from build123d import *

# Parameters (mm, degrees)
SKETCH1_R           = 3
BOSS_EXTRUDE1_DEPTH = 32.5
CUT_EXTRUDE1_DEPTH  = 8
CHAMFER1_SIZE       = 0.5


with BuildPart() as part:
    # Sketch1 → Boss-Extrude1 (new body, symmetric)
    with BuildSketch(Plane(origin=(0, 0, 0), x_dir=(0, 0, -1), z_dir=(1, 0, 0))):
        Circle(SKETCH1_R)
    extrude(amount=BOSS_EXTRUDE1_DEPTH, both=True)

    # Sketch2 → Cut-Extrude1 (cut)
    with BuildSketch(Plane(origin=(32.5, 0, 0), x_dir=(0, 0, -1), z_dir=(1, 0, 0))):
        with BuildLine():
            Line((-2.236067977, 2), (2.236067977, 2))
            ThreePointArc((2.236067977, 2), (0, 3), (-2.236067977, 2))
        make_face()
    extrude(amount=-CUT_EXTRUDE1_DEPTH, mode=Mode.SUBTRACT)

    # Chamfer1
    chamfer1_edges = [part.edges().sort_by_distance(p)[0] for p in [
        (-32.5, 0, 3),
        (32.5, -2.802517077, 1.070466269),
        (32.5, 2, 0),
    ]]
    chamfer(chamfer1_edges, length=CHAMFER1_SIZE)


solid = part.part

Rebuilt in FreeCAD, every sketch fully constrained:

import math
import FreeCAD as App
import Part
import Sketcher
Q = App.Units.Quantity


def edges_at(feature, points):
    """Names of the edges that pass closest to the given points."""
    edges = feature.Shape.Edges
    near = lambda p: min(range(len(edges)), key=lambda i: edges[i].distToShape(Part.Vertex(*p))[0])
    return sorted({f"Edge{near(p) + 1}" for p in points})

doc = App.newDocument("Part")
body = doc.addObject("PartDesign::Body", "Body")

# Sketch on YZ plane
sketch1 = doc.addObject("Sketcher::SketchObject", "Sketch")
body.addObject(sketch1)
sketch1.AttachmentSupport = (doc.YZ_Plane, [""])
sketch1.MapMode = "FlatFace"
sketch1.addGeometry(Part.Circle(App.Vector(0, 0, 0), App.Vector(0, 0, 1), 3), False)
sketch1.addConstraint(Sketcher.Constraint("Coincident", 0, 3, -1, 1))
sketch1.addConstraint(Sketcher.Constraint("Diameter", 0, Q("6 mm")))
pad1 = doc.addObject("PartDesign::Pad", "Pad")
body.addObject(pad1)
pad1.Profile = sketch1
pad1.Length = 65
pad1.Midplane = True

# Sketch on YZ plane
sketch2 = doc.addObject("Sketcher::SketchObject", "Sketch001")
body.addObject(sketch2)
sketch2.AttachmentSupport = (doc.YZ_Plane, [""])
sketch2.MapMode = "FlatFace"
sketch2.AttachmentOffset = App.Placement(App.Vector(0, 0, 32.5), App.Rotation())
sketch2.addGeometry(Part.LineSegment(App.Vector(2, 2.2, 0), App.Vector(2, -2.2, 0)), False)
sketch2.addGeometry(Part.ArcOfCircle(Part.Circle(App.Vector(0, 0, 0), App.Vector(0, 0, 1), 3), math.radians(-48), math.radians(48)), False)
sketch2.addConstraint(Sketcher.Constraint("Coincident", 0, 1, 1, 2))
sketch2.addConstraint(Sketcher.Constraint("Coincident", 1, 1, 0, 2))
sketch2.addConstraint(Sketcher.Constraint("Vertical", 0))
sketch2.addConstraint(Sketcher.Constraint("Coincident", 1, 3, -1, 1))
sketch2.addConstraint(Sketcher.Constraint("Radius", 1, Q("3 mm")))
sketch2.addConstraint(Sketcher.Constraint("DistanceX", -1, 1, 0, 1, Q("2 mm")))
pocket1 = doc.addObject("PartDesign::Pocket", "Pocket")
body.addObject(pocket1)
pocket1.Profile = sketch2
pocket1.Length = 8
doc.recompute()

chamfer = doc.addObject("PartDesign::Chamfer", "Chamfer")
body.addObject(chamfer)
chamfer.Base = (pocket1, edges_at(pocket1, [(-32.5, 0, 3), (32.5, -2.803, 1.07), (32.5, 2, 0)]))
chamfer.Size = 0.5

doc.recompute()
